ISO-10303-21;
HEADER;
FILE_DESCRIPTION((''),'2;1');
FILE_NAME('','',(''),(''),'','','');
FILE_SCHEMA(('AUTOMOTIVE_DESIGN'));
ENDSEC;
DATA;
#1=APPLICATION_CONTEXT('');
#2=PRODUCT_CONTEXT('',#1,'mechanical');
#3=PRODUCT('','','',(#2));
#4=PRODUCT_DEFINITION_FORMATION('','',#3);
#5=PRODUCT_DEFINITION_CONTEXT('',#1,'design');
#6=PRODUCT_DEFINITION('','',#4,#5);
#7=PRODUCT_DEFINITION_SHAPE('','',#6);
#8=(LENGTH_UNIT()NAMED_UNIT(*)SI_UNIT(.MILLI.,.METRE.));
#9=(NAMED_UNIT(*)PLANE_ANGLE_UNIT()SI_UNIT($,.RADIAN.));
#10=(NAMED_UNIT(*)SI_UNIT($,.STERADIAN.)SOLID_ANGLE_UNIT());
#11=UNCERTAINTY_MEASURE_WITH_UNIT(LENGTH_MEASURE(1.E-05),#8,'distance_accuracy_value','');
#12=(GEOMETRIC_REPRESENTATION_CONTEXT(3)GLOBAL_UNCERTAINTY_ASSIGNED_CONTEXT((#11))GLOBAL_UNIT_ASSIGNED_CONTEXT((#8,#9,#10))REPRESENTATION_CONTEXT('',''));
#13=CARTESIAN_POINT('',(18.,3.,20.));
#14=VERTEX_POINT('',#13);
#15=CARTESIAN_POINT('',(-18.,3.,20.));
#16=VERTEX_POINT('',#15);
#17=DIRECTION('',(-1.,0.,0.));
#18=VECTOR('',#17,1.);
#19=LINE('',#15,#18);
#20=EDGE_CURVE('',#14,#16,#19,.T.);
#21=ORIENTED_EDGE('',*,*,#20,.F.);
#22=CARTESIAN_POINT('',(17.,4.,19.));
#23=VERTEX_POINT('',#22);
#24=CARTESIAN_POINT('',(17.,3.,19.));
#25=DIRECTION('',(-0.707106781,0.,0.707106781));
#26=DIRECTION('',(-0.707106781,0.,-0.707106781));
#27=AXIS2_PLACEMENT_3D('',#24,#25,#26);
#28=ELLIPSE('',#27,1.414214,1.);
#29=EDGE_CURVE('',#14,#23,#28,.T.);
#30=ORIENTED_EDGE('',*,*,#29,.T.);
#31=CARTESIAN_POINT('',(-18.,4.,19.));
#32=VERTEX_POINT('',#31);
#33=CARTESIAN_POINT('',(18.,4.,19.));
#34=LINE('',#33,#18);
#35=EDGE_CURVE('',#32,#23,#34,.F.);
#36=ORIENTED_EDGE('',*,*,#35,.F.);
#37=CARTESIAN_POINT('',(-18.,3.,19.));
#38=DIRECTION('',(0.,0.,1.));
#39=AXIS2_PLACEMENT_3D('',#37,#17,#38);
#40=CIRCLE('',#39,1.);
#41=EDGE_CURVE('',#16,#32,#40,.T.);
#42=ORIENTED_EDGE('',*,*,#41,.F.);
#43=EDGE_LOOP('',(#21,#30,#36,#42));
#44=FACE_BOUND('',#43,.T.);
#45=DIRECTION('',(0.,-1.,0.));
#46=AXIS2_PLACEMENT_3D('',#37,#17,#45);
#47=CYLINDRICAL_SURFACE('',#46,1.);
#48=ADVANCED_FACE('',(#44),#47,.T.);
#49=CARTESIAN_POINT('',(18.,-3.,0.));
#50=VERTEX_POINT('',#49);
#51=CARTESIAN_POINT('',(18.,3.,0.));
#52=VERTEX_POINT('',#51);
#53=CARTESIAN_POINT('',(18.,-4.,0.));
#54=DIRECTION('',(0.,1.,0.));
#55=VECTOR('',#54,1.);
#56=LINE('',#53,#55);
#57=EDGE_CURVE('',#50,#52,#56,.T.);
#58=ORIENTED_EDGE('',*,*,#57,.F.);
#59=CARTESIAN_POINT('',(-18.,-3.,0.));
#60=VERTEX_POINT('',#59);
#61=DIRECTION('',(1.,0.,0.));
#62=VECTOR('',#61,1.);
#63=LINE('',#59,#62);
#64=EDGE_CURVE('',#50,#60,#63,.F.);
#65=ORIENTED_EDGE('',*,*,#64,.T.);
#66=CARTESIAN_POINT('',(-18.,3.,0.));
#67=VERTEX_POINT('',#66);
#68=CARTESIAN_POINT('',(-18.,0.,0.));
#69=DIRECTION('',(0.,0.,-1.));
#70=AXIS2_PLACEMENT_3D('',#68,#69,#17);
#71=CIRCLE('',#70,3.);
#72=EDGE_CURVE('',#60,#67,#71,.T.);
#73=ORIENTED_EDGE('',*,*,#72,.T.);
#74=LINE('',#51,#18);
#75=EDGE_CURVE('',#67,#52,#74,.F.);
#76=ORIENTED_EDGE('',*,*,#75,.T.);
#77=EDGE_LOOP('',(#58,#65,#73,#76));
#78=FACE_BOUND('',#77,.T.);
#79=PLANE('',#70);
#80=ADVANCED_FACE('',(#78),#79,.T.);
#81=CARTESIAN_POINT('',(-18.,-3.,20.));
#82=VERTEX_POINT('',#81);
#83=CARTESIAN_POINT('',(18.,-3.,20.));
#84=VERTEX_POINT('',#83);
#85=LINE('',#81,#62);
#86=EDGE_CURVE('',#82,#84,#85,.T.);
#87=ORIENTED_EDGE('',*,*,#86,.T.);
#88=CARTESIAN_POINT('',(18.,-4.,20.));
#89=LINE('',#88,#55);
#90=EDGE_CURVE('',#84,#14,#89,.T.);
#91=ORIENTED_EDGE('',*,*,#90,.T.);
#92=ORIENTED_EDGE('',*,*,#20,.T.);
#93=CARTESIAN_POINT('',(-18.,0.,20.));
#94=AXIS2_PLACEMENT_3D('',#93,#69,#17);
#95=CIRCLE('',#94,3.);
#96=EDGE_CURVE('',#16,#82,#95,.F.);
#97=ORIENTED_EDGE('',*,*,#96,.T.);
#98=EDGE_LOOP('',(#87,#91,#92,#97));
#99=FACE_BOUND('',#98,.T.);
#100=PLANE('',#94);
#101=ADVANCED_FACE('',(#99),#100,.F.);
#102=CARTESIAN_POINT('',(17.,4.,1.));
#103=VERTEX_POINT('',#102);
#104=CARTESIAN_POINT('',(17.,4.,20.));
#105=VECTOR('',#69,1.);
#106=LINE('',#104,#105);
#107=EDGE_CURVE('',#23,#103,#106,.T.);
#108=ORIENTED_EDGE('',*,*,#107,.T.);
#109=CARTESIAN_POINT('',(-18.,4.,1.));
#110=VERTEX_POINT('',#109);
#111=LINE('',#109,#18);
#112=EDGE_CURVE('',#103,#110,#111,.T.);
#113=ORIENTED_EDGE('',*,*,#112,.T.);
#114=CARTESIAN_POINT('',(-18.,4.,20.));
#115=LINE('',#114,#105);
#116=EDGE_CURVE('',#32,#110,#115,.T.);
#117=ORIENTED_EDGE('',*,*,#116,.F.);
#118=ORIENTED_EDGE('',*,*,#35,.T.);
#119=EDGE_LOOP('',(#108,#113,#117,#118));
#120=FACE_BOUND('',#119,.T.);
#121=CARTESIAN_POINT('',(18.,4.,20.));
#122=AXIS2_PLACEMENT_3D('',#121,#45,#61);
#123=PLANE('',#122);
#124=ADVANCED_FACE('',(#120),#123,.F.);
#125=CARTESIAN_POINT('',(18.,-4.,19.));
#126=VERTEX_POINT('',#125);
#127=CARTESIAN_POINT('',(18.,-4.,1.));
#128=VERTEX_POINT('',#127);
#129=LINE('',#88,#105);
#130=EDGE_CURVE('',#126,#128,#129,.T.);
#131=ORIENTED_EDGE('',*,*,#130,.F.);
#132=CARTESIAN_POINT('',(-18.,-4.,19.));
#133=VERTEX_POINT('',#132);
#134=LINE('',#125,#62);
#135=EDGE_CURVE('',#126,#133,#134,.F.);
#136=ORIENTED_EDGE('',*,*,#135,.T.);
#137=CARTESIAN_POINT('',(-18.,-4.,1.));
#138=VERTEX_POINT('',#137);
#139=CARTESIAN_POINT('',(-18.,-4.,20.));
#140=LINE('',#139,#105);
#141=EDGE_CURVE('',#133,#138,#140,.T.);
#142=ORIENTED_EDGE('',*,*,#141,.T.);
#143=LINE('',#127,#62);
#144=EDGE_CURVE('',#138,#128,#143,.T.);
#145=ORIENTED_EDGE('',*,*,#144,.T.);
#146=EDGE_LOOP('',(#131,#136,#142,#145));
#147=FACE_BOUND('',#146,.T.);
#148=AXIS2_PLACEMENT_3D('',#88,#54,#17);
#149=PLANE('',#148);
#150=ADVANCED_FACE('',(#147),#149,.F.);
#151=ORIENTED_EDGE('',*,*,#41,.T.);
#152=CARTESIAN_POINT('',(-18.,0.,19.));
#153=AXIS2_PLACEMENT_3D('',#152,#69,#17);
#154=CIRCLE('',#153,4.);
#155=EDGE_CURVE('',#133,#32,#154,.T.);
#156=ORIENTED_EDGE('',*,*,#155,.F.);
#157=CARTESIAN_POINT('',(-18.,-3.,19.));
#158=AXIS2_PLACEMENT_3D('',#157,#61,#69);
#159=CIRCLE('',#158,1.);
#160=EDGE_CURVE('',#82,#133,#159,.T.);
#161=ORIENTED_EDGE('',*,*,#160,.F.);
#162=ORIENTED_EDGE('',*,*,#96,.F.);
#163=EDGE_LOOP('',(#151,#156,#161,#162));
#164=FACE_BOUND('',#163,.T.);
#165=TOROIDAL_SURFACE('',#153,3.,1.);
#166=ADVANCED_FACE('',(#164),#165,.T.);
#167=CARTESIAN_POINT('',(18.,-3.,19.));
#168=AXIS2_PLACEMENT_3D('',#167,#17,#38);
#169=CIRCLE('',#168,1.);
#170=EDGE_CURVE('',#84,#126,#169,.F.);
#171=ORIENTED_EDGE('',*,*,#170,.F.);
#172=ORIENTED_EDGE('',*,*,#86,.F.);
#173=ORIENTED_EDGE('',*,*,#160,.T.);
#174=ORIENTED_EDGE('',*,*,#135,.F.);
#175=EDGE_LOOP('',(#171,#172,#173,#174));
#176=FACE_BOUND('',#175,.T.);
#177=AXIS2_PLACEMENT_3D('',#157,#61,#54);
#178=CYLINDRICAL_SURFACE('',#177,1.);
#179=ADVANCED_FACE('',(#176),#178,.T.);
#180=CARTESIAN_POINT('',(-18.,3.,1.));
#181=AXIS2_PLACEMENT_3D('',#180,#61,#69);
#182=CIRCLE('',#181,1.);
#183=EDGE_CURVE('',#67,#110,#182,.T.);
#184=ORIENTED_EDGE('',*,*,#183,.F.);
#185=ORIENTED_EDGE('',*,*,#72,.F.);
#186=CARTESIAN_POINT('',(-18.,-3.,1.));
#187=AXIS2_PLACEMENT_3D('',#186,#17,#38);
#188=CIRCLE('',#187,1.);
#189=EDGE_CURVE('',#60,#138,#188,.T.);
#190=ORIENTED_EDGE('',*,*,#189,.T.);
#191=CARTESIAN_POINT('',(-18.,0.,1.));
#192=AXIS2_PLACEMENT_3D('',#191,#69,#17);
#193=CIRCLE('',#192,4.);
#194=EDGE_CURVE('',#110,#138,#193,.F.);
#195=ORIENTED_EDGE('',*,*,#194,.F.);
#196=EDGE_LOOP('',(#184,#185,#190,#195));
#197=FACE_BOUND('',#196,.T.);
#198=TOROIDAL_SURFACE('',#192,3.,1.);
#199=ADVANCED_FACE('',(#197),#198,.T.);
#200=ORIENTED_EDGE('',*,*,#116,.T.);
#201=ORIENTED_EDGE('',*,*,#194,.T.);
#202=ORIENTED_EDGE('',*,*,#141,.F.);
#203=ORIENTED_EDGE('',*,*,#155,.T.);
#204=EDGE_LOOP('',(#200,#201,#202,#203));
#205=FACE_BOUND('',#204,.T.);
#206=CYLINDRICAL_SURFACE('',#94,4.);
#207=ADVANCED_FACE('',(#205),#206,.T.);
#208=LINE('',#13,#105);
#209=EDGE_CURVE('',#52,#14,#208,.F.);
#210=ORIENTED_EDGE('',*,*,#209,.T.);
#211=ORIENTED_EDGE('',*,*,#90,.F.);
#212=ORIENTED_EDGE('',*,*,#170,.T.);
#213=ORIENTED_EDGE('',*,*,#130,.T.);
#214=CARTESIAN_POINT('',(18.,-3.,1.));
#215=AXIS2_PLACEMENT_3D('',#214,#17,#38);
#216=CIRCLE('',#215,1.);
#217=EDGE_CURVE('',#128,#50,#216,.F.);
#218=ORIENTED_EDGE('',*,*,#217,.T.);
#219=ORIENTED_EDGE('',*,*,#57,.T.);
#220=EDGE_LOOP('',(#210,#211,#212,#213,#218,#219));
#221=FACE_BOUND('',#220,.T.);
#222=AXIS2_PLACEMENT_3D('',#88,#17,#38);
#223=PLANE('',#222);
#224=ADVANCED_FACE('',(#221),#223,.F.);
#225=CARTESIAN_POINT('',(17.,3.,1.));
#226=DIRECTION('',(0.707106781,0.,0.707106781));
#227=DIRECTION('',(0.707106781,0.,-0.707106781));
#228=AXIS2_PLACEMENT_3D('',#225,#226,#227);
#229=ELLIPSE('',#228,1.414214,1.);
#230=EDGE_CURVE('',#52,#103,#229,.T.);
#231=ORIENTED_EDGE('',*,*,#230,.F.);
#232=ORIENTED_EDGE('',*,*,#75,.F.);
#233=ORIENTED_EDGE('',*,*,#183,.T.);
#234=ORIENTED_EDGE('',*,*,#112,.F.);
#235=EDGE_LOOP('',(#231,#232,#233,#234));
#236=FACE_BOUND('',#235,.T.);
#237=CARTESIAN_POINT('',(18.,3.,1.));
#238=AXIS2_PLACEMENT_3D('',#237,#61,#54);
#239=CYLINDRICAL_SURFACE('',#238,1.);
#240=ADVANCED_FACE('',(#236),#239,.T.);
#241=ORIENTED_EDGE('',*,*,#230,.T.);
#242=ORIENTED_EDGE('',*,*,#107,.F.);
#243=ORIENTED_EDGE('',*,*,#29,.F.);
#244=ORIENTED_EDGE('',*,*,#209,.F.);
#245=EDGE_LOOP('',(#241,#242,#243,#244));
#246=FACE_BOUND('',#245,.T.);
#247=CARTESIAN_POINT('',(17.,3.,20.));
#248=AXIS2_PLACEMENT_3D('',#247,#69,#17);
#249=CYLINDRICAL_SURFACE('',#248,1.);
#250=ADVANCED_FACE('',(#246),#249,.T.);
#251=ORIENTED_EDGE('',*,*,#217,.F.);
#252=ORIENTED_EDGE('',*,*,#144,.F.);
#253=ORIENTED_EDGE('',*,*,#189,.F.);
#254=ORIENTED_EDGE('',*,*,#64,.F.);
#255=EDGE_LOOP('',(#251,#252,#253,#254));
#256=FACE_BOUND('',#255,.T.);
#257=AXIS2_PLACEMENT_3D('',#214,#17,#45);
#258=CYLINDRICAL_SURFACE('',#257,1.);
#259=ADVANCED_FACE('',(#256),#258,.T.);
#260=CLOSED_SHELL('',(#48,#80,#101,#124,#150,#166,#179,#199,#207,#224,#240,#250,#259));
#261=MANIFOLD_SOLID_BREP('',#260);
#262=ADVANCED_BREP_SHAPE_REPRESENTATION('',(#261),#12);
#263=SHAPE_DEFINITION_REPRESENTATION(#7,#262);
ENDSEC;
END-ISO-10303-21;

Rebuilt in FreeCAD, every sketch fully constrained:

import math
import FreeCAD as App
import Part
import Sketcher


def edges_at(feature, points):
    """Names of the edges that pass closest to the given points."""
    edges = feature.Shape.Edges
    near = lambda p: min(range(len(edges)), key=lambda i: edges[i].distToShape(Part.Vertex(*p))[0])
    return sorted({f"Edge{near(p) + 1}" for p in points})

doc = App.newDocument("Part")
body = doc.addObject("PartDesign::Body", "Body")

sketch1 = doc.addObject("Sketcher::SketchObject", "Sketch")
body.addObject(sketch1)
sketch1.AttachmentSupport = (doc.XY_Plane, [""])
sketch1.MapMode = "FlatFace"
sketch1.addGeometry([
    Part.LineSegment(App.Vector(-18, -4, 0), App.Vector(18, -4, 0)),
    Part.LineSegment(App.Vector(18, -4, 0), App.Vector(18, 4, 0)),
    Part.LineSegment(App.Vector(18, 4, 0), App.Vector(-18, 4, 0)),
    Part.ArcOfCircle(Part.Circle(App.Vector(-18, 0, 0), App.Vector(0, 0, 1), 4), math.radians(90), math.radians(270)),
], False)
sketch1.addConstraint([
    Sketcher.Constraint("Coincident", 0, 2, 1, 1),
    Sketcher.Constraint("Coincident", 1, 2, 2, 1),
    Sketcher.Constraint("Tangent", 2, 2, 3, 1),
    Sketcher.Constraint("Tangent", 3, 2, 0, 1),
    Sketcher.Constraint("Horizontal", 0),
    Sketcher.Constraint("Vertical", 1),
    Sketcher.Constraint("Horizontal", 2),
    Sketcher.Constraint("Symmetric", 0, 2, 2, 2, -1, 1),
    Sketcher.Constraint("Radius", 3, 4.0),
    Sketcher.Constraint("DistanceX", 0, 1, 0, 2, 36.0),
])
pad1 = doc.addObject("PartDesign::Pad", "Pad")
body.addObject(pad1)
pad1.Profile = sketch1
pad1.Length = 20
doc.recompute()

fillet = doc.addObject("PartDesign::Fillet", "Fillet")
body.addObject(fillet)
fillet.Base = (pad1, edges_at(pad1, [
    (0, 4, 20),
    (-22, 0, 20),
    (0, 4, 0),
    (0, -4, 0),
    (-22, 0, 0),
    (18, 4, 10),
    (0, -4, 20),
]))
fillet.Radius = 1

doc.recompute()
